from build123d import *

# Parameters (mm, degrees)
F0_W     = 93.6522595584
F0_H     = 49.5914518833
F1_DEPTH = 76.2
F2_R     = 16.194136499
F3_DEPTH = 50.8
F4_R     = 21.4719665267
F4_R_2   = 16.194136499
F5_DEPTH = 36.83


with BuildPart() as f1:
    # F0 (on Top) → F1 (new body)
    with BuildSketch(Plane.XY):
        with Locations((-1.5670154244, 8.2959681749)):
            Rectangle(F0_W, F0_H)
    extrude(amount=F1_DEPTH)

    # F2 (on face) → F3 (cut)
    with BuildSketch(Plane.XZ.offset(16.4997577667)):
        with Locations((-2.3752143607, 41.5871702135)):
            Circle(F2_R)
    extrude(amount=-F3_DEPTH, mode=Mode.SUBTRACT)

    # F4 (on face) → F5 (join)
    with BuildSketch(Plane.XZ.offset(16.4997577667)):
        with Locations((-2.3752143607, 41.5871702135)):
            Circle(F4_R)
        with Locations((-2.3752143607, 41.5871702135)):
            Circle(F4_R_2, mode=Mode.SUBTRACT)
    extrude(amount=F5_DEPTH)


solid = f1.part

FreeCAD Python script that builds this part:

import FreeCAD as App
import Part
import Sketcher

V = App.Vector

doc = App.newDocument("Part")
params = doc.addObject("Spreadsheet::Sheet", "Params")
for row, (alias, value) in enumerate([
    ("pad1_length", "3 in"),
    ("pocket1_length", "2 in"),
    ("pad2_length", "1.45 in"),
], start=1):
    params.set(f"A{row}", alias)
    params.set(f"B{row}", "=" + value)
    params.setAlias(f"B{row}", alias)

body = doc.addObject("PartDesign::Body", "Body")

# Sketch on XY plane
sketch1 = body.newObject("Sketcher::SketchObject", "Sketch")
sketch1.AttachmentSupport = (doc.getObject("XY_Plane"), [""])
sketch1.MapMode = "FlatFace"
sketch1.addGeometry([
    Part.LineSegment(V(-48, 33, 0), V(-48, -16, 0)),
    Part.LineSegment(V(-48, -16, 0), V(45, -16, 0)),
    Part.LineSegment(V(45, -16, 0), V(45, 33, 0)),
    Part.LineSegment(V(45, 33, 0), V(-48, 33, 0)),
], False)
sketch1.addConstraint([
    Sketcher.Constraint("Coincident", 0, 2, 1, 1),
    Sketcher.Constraint("Coincident", 1, 2, 2, 1),
    Sketcher.Constraint("Coincident", 2, 2, 3, 1),
    Sketcher.Constraint("Coincident", 3, 2, 0, 1),
    Sketcher.Constraint("Vertical", 0),
    Sketcher.Constraint("Horizontal", 1),
    Sketcher.Constraint("Vertical", 2),
    Sketcher.Constraint("Horizontal", 3),
    Sketcher.Constraint("DistanceX", 1, 1, 1, 2, 93.65226),
    Sketcher.Constraint("DistanceY", 0, 2, 0, 1, 49.591452),
    Sketcher.Constraint("DistanceX", 0, 2, -1, 1, 48.393145),
    Sketcher.Constraint("DistanceY", 0, 2, -1, 1, 16.499758),
])
pad1 = body.newObject("PartDesign::Pad", "Pad")
pad1.Profile = sketch1
pad1.setExpression("Length", "Params.pad1_length")

# Sketch on XZ plane
sketch2 = body.newObject("Sketcher::SketchObject", "Sketch001")
sketch2.AttachmentSupport = (doc.getObject("XZ_Plane"), [""])
sketch2.MapMode = "FlatFace"
sketch2.AttachmentOffset = App.Placement(V(0, 0, 16.499758), App.Rotation())
sketch2.addGeometry(Part.Circle(V(-2, 42, 0), V(0, 0, 1), 16), False)
sketch2.addConstraint([
    Sketcher.Constraint("Diameter", 0, 32.388273),
    Sketcher.Constraint("DistanceY", -1, 1, 0, 3, 41.58717),
    Sketcher.Constraint("DistanceX", 0, 3, -1, 1, 2.375214),
])
pocket1 = body.newObject("PartDesign::Pocket", "Pocket")
pocket1.Profile = sketch2
pocket1.setExpression("Length", "Params.pocket1_length")

# Sketch on XZ plane
sketch3 = body.newObject("Sketcher::SketchObject", "Sketch002")
sketch3.AttachmentSupport = (doc.getObject("XZ_Plane"), [""])
sketch3.MapMode = "FlatFace"
sketch3.AttachmentOffset = App.Placement(V(0, 0, 16.499758), App.Rotation())
sketch3.addGeometry([
    Part.Circle(V(-2, 42, 0), V(0, 0, 1), 21),
    Part.Circle(V(-2, 42, 0), V(0, 0, 1), 16),
], False)
sketch3.addConstraint([
    Sketcher.Constraint("Coincident", 1, 3, 0, 3),
    Sketcher.Constraint("Diameter", 0, 42.943933),
    Sketcher.Constraint("Diameter", 1, 32.388273),
    Sketcher.Constraint("DistanceY", -1, 1, 0, 3, 41.58717),
    Sketcher.Constraint("DistanceX", 0, 3, -1, 1, 2.375214),
])
pad2 = body.newObject("PartDesign::Pad", "Pad001")
pad2.Profile = sketch3
pad2.setExpression("Length", "Params.pad2_length")

doc.recompute()
